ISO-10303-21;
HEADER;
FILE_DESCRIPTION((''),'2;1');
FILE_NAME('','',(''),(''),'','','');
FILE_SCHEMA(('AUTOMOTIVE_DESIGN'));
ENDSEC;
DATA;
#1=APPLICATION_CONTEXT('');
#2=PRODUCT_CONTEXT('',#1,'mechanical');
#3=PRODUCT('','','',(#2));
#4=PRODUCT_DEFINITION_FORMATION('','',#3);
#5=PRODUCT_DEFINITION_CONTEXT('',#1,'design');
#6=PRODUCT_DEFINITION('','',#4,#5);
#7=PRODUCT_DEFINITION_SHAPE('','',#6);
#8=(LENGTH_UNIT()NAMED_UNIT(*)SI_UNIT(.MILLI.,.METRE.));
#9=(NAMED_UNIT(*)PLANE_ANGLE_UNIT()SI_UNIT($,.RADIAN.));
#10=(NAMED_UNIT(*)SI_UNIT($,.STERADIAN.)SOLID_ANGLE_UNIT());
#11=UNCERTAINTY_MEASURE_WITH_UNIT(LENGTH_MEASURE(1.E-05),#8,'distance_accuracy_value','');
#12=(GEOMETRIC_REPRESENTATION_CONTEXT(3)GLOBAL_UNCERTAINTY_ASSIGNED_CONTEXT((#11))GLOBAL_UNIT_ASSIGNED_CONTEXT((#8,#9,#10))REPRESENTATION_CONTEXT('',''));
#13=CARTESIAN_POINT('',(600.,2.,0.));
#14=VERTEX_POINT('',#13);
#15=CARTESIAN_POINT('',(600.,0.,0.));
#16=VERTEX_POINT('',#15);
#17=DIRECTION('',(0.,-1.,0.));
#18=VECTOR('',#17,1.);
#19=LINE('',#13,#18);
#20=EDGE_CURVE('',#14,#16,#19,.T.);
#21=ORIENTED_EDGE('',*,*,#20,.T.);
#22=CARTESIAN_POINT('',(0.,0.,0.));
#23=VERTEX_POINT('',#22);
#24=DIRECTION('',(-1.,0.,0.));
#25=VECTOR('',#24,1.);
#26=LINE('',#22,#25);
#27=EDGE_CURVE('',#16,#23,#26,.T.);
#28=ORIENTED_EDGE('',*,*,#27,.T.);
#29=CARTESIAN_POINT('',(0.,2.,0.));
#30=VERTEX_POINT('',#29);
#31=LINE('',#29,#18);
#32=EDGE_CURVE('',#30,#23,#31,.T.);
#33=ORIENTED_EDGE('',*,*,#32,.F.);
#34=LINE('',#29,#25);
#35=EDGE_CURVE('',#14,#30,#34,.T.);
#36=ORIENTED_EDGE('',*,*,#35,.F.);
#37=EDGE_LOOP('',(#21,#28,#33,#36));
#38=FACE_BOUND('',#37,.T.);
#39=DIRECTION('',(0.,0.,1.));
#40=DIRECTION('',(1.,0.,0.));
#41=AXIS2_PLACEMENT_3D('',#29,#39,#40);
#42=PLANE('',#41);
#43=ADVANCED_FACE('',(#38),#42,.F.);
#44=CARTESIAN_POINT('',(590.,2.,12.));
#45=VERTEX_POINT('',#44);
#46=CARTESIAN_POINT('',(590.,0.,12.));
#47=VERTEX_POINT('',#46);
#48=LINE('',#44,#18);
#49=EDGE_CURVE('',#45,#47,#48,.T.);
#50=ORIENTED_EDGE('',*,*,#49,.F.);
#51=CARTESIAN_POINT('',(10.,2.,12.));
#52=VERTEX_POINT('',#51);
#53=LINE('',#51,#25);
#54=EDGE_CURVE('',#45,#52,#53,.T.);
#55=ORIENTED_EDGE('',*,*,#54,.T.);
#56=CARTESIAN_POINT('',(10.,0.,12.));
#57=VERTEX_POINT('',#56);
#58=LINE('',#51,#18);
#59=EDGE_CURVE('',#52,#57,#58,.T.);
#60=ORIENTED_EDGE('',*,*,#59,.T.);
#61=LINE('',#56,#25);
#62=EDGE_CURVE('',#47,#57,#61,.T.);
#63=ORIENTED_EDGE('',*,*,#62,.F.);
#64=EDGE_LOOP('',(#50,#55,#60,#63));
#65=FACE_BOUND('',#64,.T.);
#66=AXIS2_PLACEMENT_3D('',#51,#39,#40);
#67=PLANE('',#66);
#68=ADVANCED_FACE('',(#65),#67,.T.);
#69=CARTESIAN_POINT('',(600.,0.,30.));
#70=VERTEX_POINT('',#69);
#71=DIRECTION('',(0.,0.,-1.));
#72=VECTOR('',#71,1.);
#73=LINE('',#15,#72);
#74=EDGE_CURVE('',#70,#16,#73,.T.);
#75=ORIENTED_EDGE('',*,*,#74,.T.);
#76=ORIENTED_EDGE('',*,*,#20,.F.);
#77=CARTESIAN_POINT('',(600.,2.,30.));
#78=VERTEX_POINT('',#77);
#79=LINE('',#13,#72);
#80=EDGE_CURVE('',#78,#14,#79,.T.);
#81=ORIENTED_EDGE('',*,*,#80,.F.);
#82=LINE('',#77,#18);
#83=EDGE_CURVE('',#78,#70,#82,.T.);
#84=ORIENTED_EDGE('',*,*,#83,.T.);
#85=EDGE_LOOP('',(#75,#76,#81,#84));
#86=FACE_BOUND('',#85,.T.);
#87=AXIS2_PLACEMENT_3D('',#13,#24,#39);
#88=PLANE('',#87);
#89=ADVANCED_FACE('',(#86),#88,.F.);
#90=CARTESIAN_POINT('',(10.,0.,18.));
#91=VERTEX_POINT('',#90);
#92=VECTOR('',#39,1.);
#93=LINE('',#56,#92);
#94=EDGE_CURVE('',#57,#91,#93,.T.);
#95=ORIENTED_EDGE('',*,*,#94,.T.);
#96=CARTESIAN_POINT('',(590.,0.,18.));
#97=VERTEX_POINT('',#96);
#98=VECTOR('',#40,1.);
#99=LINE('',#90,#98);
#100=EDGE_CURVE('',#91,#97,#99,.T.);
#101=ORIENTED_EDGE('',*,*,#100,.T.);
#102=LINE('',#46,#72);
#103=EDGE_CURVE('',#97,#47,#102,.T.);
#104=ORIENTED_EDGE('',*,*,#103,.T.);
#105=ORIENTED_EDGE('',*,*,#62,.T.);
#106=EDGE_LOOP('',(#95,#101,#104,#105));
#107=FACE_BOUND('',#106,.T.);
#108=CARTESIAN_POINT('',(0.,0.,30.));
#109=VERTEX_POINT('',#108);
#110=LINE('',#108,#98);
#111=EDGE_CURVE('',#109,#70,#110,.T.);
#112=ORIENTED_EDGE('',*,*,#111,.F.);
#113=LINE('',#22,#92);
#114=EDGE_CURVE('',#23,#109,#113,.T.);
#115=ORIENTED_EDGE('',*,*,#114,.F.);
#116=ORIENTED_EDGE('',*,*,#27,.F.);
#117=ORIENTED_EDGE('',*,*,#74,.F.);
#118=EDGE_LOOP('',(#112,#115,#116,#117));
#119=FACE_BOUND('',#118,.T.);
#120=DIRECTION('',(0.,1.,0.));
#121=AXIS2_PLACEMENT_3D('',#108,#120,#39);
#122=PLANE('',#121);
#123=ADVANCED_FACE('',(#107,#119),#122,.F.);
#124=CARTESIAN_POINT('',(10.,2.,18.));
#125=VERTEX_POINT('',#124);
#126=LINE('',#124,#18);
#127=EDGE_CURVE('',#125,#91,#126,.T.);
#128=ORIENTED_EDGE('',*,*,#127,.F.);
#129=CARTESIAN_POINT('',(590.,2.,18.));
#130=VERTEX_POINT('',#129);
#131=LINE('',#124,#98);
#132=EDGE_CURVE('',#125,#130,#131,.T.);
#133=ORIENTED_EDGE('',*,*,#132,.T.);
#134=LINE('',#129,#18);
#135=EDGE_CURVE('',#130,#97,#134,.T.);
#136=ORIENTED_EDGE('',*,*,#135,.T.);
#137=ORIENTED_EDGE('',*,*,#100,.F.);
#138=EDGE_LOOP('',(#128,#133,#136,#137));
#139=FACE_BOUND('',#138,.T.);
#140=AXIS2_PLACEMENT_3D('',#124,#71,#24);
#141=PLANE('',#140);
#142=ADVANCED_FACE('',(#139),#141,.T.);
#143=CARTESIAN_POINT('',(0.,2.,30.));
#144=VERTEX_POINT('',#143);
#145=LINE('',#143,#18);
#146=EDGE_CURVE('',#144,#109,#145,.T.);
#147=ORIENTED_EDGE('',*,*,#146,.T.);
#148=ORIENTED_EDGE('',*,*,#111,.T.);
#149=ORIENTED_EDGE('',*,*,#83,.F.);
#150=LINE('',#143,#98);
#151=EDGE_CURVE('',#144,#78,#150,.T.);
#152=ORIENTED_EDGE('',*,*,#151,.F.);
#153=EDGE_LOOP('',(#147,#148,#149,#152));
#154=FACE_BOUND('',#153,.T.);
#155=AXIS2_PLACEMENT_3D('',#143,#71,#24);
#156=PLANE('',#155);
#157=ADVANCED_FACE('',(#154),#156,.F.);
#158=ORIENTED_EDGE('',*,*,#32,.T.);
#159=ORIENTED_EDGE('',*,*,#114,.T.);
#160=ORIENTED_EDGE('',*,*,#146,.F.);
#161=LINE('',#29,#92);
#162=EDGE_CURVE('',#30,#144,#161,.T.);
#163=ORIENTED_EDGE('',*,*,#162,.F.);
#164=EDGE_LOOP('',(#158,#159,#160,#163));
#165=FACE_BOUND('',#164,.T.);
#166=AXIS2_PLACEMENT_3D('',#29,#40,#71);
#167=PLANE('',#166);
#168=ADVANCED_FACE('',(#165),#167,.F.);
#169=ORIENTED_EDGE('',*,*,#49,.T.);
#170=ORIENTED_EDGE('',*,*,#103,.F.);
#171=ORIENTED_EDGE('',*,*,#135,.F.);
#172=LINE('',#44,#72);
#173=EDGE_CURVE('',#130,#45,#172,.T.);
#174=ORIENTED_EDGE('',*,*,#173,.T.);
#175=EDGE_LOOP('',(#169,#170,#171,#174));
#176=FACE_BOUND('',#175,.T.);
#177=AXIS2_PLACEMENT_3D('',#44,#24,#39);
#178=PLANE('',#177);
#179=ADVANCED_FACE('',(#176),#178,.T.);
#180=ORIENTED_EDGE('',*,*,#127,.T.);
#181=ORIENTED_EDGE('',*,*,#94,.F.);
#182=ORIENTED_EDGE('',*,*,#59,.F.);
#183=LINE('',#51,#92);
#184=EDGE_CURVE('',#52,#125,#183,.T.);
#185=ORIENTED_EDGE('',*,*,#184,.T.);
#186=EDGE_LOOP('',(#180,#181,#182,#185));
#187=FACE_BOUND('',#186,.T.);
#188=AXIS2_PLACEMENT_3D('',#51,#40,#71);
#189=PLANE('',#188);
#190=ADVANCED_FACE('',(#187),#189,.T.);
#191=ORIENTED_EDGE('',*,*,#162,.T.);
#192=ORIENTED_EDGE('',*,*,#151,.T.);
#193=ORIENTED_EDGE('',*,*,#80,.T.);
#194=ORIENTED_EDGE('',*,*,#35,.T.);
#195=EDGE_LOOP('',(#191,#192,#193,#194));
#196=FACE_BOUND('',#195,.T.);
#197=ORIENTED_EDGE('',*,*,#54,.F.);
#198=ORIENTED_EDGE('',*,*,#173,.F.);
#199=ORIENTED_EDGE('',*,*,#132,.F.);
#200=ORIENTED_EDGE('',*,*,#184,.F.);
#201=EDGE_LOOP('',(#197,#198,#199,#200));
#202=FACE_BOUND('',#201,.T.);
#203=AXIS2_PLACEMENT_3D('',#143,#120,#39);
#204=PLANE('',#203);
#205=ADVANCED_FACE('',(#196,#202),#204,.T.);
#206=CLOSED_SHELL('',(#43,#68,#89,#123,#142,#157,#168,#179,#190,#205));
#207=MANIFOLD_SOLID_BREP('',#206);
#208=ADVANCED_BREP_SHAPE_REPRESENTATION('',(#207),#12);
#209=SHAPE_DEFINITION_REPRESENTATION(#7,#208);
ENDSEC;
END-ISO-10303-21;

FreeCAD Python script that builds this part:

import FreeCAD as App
import Part
import Sketcher

doc = App.newDocument("Part")
body = doc.addObject("PartDesign::Body", "Body")

sketch1 = body.newObject("Sketcher::SketchObject", "Sketch")
sketch1.AttachmentSupport = (doc.getObject("XZ_Plane"), [""])
sketch1.MapMode = "FlatFace"
sketch1.addGeometry(Part.LineSegment(App.Vector(0, 0, 0), App.Vector(0, 30, 0)), False)
sketch1.addGeometry(Part.LineSegment(App.Vector(0, 30, 0), App.Vector(600, 30, 0)), False)
sketch1.addGeometry(Part.LineSegment(App.Vector(600, 30, 0), App.Vector(600, 0, 0)), False)
sketch1.addGeometry(Part.LineSegment(App.Vector(600, 0, 0), App.Vector(0, 0, 0)), False)
sketch1.addGeometry(Part.LineSegment(App.Vector(590, 18, 0), App.Vector(10, 18, 0)), False)
sketch1.addGeometry(Part.LineSegment(App.Vector(10, 18, 0), App.Vector(10, 12, 0)), False)
sketch1.addGeometry(Part.LineSegment(App.Vector(10, 12, 0), App.Vector(590, 12, 0)), False)
sketch1.addGeometry(Part.LineSegment(App.Vector(590, 12, 0), App.Vector(590, 18, 0)), False)
sketch1.addConstraint(Sketcher.Constraint("Coincident", 0, 2, 1, 1))
sketch1.addConstraint(Sketcher.Constraint("Coincident", 1, 2, 2, 1))
sketch1.addConstraint(Sketcher.Constraint("Coincident", 2, 2, 3, 1))
sketch1.addConstraint(Sketcher.Constraint("Coincident", 3, 2, 0, 1))
sketch1.addConstraint(Sketcher.Constraint("Coincident", 4, 2, 5, 1))
sketch1.addConstraint(Sketcher.Constraint("Coincident", 5, 2, 6, 1))
sketch1.addConstraint(Sketcher.Constraint("Coincident", 6, 2, 7, 1))
sketch1.addConstraint(Sketcher.Constraint("Coincident", 7, 2, 4, 1))
sketch1.addConstraint(Sketcher.Constraint("Vertical", 0))
sketch1.addConstraint(Sketcher.Constraint("Horizontal", 1))
sketch1.addConstraint(Sketcher.Constraint("Vertical", 2))
sketch1.addConstraint(Sketcher.Constraint("Horizontal", 3))
sketch1.addConstraint(Sketcher.Constraint("Horizontal", 4))
sketch1.addConstraint(Sketcher.Constraint("Vertical", 5))
sketch1.addConstraint(Sketcher.Constraint("Horizontal", 6))
sketch1.addConstraint(Sketcher.Constraint("Vertical", 7))
sketch1.addConstraint(Sketcher.Constraint("Coincident", 3, 2, -1, 1))
sketch1.addConstraint(Sketcher.Constraint("DistanceX", 1, 1, 1, 2, 600.0))
sketch1.addConstraint(Sketcher.Constraint("DistanceX", 4, 2, 4, 1, 580.0))
sketch1.addConstraint(Sketcher.Constraint("DistanceY", 0, 1, 0, 2, 30.0))
sketch1.addConstraint(Sketcher.Constraint("DistanceY", 5, 2, 5, 1, 6.0))
sketch1.addConstraint(Sketcher.Constraint("DistanceX", -1, 1, 4, 2, 10.0))
sketch1.addConstraint(Sketcher.Constraint("DistanceY", -1, 1, 4, 2, 18.0))
pad1 = body.newObject("PartDesign::Pad", "Pad")
pad1.Profile = sketch1
pad1.Length = 2
pad1.Reversed = True

doc.recompute()
